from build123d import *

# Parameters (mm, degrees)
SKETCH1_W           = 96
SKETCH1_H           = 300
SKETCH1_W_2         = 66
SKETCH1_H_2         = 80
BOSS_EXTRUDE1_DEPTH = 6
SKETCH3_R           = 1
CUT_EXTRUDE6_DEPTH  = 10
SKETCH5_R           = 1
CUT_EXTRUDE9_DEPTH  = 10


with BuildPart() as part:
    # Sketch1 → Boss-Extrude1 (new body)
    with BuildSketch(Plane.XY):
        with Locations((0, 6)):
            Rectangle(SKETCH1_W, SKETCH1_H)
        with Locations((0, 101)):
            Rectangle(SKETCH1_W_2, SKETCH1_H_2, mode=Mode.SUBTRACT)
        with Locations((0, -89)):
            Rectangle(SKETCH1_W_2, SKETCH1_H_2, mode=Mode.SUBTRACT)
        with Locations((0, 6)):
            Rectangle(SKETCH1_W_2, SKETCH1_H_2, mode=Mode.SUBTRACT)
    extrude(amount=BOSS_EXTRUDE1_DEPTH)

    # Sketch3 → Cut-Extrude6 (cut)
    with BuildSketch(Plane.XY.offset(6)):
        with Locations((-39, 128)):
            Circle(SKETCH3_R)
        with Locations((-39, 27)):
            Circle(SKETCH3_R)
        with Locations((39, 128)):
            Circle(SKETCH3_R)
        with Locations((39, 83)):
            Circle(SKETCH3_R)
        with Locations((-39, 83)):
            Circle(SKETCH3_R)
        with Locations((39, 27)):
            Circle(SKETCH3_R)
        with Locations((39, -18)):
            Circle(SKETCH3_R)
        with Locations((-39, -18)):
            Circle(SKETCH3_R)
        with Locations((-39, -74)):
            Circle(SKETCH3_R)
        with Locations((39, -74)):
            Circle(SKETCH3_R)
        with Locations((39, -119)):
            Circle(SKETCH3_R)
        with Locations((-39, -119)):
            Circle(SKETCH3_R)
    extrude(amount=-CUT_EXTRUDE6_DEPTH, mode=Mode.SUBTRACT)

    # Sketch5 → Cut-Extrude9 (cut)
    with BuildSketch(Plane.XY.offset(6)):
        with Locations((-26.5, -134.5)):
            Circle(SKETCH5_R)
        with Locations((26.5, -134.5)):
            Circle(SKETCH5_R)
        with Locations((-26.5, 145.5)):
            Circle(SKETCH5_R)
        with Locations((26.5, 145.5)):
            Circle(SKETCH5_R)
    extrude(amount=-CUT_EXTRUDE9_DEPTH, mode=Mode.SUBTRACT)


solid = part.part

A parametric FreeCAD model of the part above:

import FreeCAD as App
import Part
import Sketcher

doc = App.newDocument("Part")
body = doc.addObject("PartDesign::Body", "Body")

# Sketch on XY plane
sketch1 = body.newObject("Sketcher::SketchObject", "Sketch")
sketch1.AttachmentSupport = (doc.getObject("XY_Plane"), [""])
sketch1.MapMode = "FlatFace"
sketch1.addGeometry([
    Part.LineSegment(App.Vector(-48, 156, 0), App.Vector(-48, -144, 0)),  # 0
    Part.LineSegment(App.Vector(-48, -144, 0), App.Vector(48, -144, 0)),  # 1
    Part.LineSegment(App.Vector(48, -144, 0), App.Vector(48, 156, 0)),  # 2
    Part.LineSegment(App.Vector(48, 156, 0), App.Vector(-48, 156, 0)),  # 3
    Part.LineSegment(App.Vector(33, -129, 0), App.Vector(-33, -129, 0)),  # 4
    Part.LineSegment(App.Vector(-33, -129, 0), App.Vector(-33, -49, 0)),  # 5
    Part.LineSegment(App.Vector(-33, -49, 0), App.Vector(33, -49, 0)),  # 6
    Part.LineSegment(App.Vector(33, -49, 0), App.Vector(33, -129, 0)),  # 7
    Part.LineSegment(App.Vector(33, -34, 0), App.Vector(-33, -34, 0)),  # 8
    Part.LineSegment(App.Vector(-33, -34, 0), App.Vector(-33, 46, 0)),  # 9
    Part.LineSegment(App.Vector(-33, 46, 0), App.Vector(33, 46, 0)),  # 10
    Part.LineSegment(App.Vector(33, 46, 0), App.Vector(33, -34, 0)),  # 11
    Part.LineSegment(App.Vector(33, 61, 0), App.Vector(-33, 61, 0)),  # 12
    Part.LineSegment(App.Vector(-33, 61, 0), App.Vector(-33, 141, 0)),  # 13
    Part.LineSegment(App.Vector(-33, 141, 0), App.Vector(33, 141, 0)),  # 14
    Part.LineSegment(App.Vector(33, 141, 0), App.Vector(33, 61, 0)),  # 15
], False)
sketch1.addConstraint([
    Sketcher.Constraint("Coincident", 0, 2, 1, 1),
    Sketcher.Constraint("Coincident", 1, 2, 2, 1),
    Sketcher.Constraint("Coincident", 2, 2, 3, 1),
    Sketcher.Constraint("Coincident", 3, 2, 0, 1),
    Sketcher.Constraint("Coincident", 4, 2, 5, 1),
    Sketcher.Constraint("Coincident", 5, 2, 6, 1),
    Sketcher.Constraint("Coincident", 6, 2, 7, 1),
    Sketcher.Constraint("Coincident", 7, 2, 4, 1),
    Sketcher.Constraint("Coincident", 8, 2, 9, 1),
    Sketcher.Constraint("Coincident", 9, 2, 10, 1),
    Sketcher.Constraint("Coincident", 10, 2, 11, 1),
    Sketcher.Constraint("Coincident", 11, 2, 8, 1),
    Sketcher.Constraint("Coincident", 12, 2, 13, 1),
    Sketcher.Constraint("Coincident", 13, 2, 14, 1),
    Sketcher.Constraint("Coincident", 14, 2, 15, 1),
    Sketcher.Constraint("Coincident", 15, 2, 12, 1),
    Sketcher.Constraint("Vertical", 0),
    Sketcher.Constraint("Horizontal", 1),
    Sketcher.Constraint("Vertical", 2),
    Sketcher.Constraint("Horizontal", 3),
    Sketcher.Constraint("Horizontal", 4),
    Sketcher.Constraint("Vertical", 5),
    Sketcher.Constraint("Horizontal", 6),
    Sketcher.Constraint("Vertical", 7),
    Sketcher.Constraint("Horizontal", 8),
    Sketcher.Constraint("Vertical", 9),
    Sketcher.Constraint("Horizontal", 10),
    Sketcher.Constraint("Vertical", 11),
    Sketcher.Constraint("Horizontal", 12),
    Sketcher.Constraint("Vertical", 13),
    Sketcher.Constraint("Horizontal", 14),
    Sketcher.Constraint("Vertical", 15),
    Sketcher.Constraint("Vertical", 5, 2, 8, 2),
    Sketcher.Constraint("Vertical", 7, 2, 10, 2),
    Sketcher.Constraint("Vertical", 9, 2, 12, 2),
    Sketcher.Constraint("Vertical", 11, 2, 14, 2),
    Sketcher.Constraint("Equal", 7, 9),
    Sketcher.Constraint("Equal", 11, 13),
    Sketcher.Constraint("DistanceX", 1, 1, 1, 2, 96.0),
    Sketcher.Constraint("DistanceX", 4, 2, 4, 1, 66.0),
    Sketcher.Constraint("DistanceY", 0, 2, 0, 1, 300.0),
    Sketcher.Constraint("DistanceY", 5, 1, 5, 2, 80.0),
    Sketcher.Constraint("DistanceX", 0, 2, -1, 1, 48.0),
    Sketcher.Constraint("DistanceY", 0, 2, -1, 1, 144.0),
    Sketcher.Constraint("DistanceX", 4, 2, -1, 1, 33.0),
    Sketcher.Constraint("DistanceY", 4, 2, -1, 1, 129.0),
    Sketcher.Constraint("DistanceY", 8, 2, -1, 1, 34.0),
    Sketcher.Constraint("DistanceY", -1, 1, 12, 2, 61.0),
])
pad1 = body.newObject("PartDesign::Pad", "Pad")
pad1.Profile = sketch1
pad1.Length = 6

# Sketch on XY plane
sketch2 = body.newObject("Sketcher::SketchObject", "Sketch001")
sketch2.AttachmentSupport = (doc.getObject("XY_Plane"), [""])
sketch2.MapMode = "FlatFace"
sketch2.AttachmentOffset = App.Placement(App.Vector(0, 0, 6), App.Rotation())
sketch2.addGeometry([
    Part.Circle(App.Vector(-39, 128, 0), App.Vector(0, 0, 1), 1),  # 0
    Part.Circle(App.Vector(-39, 27, 0), App.Vector(0, 0, 1), 1),  # 1
    Part.Circle(App.Vector(39, 128, 0), App.Vector(0, 0, 1), 1),  # 2
    Part.Circle(App.Vector(39, 83, 0), App.Vector(0, 0, 1), 1),  # 3
    Part.Circle(App.Vector(-39, 83, 0), App.Vector(0, 0, 1), 1),  # 4
    Part.Circle(App.Vector(39, 27, 0), App.Vector(0, 0, 1), 1),  # 5
    Part.Circle(App.Vector(39, -18, 0), App.Vector(0, 0, 1), 1),  # 6
    Part.Circle(App.Vector(-39, -18, 0), App.Vector(0, 0, 1), 1),  # 7
    Part.Circle(App.Vector(-39, -74, 0), App.Vector(0, 0, 1), 1),  # 8
    Part.Circle(App.Vector(39, -74, 0), App.Vector(0, 0, 1), 1),  # 9
    Part.Circle(App.Vector(39, -119, 0), App.Vector(0, 0, 1), 1),  # 10
    Part.Circle(App.Vector(-39, -119, 0), App.Vector(0, 0, 1), 1),  # 11
], False)
sketch2.addConstraint([
    Sketcher.Constraint("Equal", 0, 1),
    Sketcher.Constraint("Equal", 1, 2),
    Sketcher.Constraint("Equal", 2, 3),
    Sketcher.Constraint("Equal", 3, 4),
    Sketcher.Constraint("Equal", 4, 5),
    Sketcher.Constraint("Equal", 5, 6),
    Sketcher.Constraint("Equal", 6, 7),
    Sketcher.Constraint("Equal", 7, 8),
    Sketcher.Constraint("Equal", 8, 9),
    Sketcher.Constraint("Equal", 9, 10),
    Sketcher.Constraint("Equal", 10, 11),
    Sketcher.Constraint("Symmetric", 0, 3, 2, 3, -2),
    Sketcher.Constraint("Symmetric", 3, 3, 4, 3, -2),
    Sketcher.Constraint("Symmetric", 1, 3, 5, 3, -2),
    Sketcher.Constraint("Symmetric", 6, 3, 7, 3, -2),
    Sketcher.Constraint("Symmetric", 8, 3, 9, 3, -2),
    Sketcher.Constraint("Symmetric", 10, 3, 11, 3, -2),
    Sketcher.Constraint("Vertical", 0, 3, 1, 3),
    Sketcher.Constraint("Vertical", 2, 3, 3, 3),
    Sketcher.Constraint("Vertical", 5, 3, 6, 3),
    Sketcher.Constraint("Vertical", 7, 3, 8, 3),
    Sketcher.Constraint("Vertical", 9, 3, 10, 3),
    Sketcher.Constraint("Diameter", 0, 2.0),
    Sketcher.Constraint("DistanceX", 0, 3, -1, 1, 39.0),
    Sketcher.Constraint("DistanceY", -1, 1, 0, 3, 128.0),
    Sketcher.Constraint("DistanceY", -1, 1, 1, 3, 27.0),
    Sketcher.Constraint("DistanceY", -1, 1, 3, 3, 83.0),
    Sketcher.Constraint("DistanceY", 6, 3, -1, 1, 18.0),
    Sketcher.Constraint("DistanceY", 8, 3, -1, 1, 74.0),
    Sketcher.Constraint("DistanceY", 10, 3, -1, 1, 119.0),
])
pocket1 = body.newObject("PartDesign::Pocket", "Pocket")
pocket1.Profile = sketch2
pocket1.Length = 10

# Sketch on XY plane
sketch3 = body.newObject("Sketcher::SketchObject", "Sketch002")
sketch3.AttachmentSupport = (doc.getObject("XY_Plane"), [""])
sketch3.MapMode = "FlatFace"
sketch3.AttachmentOffset = App.Placement(App.Vector(0, 0, 6), App.Rotation())
sketch3.addGeometry([
    Part.Circle(App.Vector(-26.5, -134.5, 0), App.Vector(0, 0, 1), 1),
    Part.Circle(App.Vector(26.5, -134.5, 0), App.Vector(0, 0, 1), 1),
    Part.Circle(App.Vector(-26.5, 145.5, 0), App.Vector(0, 0, 1), 1),
    Part.Circle(App.Vector(26.5, 145.5, 0), App.Vector(0, 0, 1), 1),
], False)
sketch3.addConstraint([
    Sketcher.Constraint("Equal", 0, 1),
    Sketcher.Constraint("Equal", 1, 2),
    Sketcher.Constraint("Equal", 2, 3),
    Sketcher.Constraint("Symmetric", 0, 3, 1, 3, -2),
    Sketcher.Constraint("Symmetric", 2, 3, 3, 3, -2),
    Sketcher.Constraint("Vertical", 0, 3, 2, 3),
    Sketcher.Constraint("Diameter", 0, 2.0),
    Sketcher.Constraint("DistanceX", 0, 3, 1, 3, 53.0),
    Sketcher.Constraint("DistanceY", 0, 3, 2, 3, 280.0),
    Sketcher.Constraint("DistanceY", 0, 3, -1, 1, 134.5),
])
pocket2 = body.newObject("PartDesign::Pocket", "Pocket001")
pocket2.Profile = sketch3
pocket2.Length = 10

doc.recompute()
